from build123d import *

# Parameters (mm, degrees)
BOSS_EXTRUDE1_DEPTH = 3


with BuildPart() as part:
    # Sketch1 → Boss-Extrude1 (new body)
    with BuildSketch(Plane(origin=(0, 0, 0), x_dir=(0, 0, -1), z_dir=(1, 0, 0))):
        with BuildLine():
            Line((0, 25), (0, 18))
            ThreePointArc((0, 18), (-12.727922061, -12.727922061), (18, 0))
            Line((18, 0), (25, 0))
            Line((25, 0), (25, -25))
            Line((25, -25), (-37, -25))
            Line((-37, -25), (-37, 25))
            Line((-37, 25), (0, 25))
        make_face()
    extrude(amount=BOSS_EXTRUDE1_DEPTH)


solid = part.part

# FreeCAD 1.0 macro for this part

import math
import FreeCAD as App
import Part
import Sketcher

V = App.Vector

doc = App.newDocument("Part")
body = doc.addObject("PartDesign::Body", "Body")

sketch1 = body.newObject("Sketcher::SketchObject", "Sketch")
sketch1.AttachmentSupport = (doc.getObject("YZ_Plane"), [""])
sketch1.MapMode = "FlatFace"
sketch1.addGeometry([
    Part.LineSegment(V(18, 0, 0), V(25, 0, 0)),
    Part.LineSegment(V(25, 0, 0), V(25, 37, 0)),
    Part.LineSegment(V(25, 37, 0), V(-25, 37, 0)),
    Part.LineSegment(V(-25, 37, 0), V(-25, -25, 0)),
    Part.LineSegment(V(-25, -25, 0), V(0, -25, 0)),
    Part.LineSegment(V(0, -25, 0), V(0, -18, 0)),
    Part.ArcOfCircle(Part.Circle(V(0, 0, 0), V(0, 0, 1), 18), math.radians(0), math.radians(270)),
], False)
sketch1.addConstraint([
    Sketcher.Constraint("Coincident", 0, 2, 1, 1),
    Sketcher.Constraint("Coincident", 1, 2, 2, 1),
    Sketcher.Constraint("Coincident", 2, 2, 3, 1),
    Sketcher.Constraint("Coincident", 3, 2, 4, 1),
    Sketcher.Constraint("Coincident", 4, 2, 5, 1),
    Sketcher.Constraint("Coincident", 5, 2, 6, 2),
    Sketcher.Constraint("Coincident", 6, 1, 0, 1),
    Sketcher.Constraint("Horizontal", 0),
    Sketcher.Constraint("Vertical", 1),
    Sketcher.Constraint("Horizontal", 2),
    Sketcher.Constraint("Vertical", 3),
    Sketcher.Constraint("Horizontal", 4),
    Sketcher.Constraint("Vertical", 5),
    Sketcher.Constraint("Coincident", 6, 3, -1, 1),
    Sketcher.Constraint("PointOnObject", 0, 2, -1),
    Sketcher.Constraint("PointOnObject", 4, 2, -2),
    Sketcher.Constraint("Equal", 0, 5),
    Sketcher.Constraint("Radius", 6, 18.0),
    Sketcher.Constraint("DistanceX", 0, 1, 0, 2, 7.0),
    Sketcher.Constraint("DistanceX", 2, 2, 2, 1, 50.0),
    Sketcher.Constraint("DistanceY", 1, 1, 1, 2, 37.0),
])
pad1 = body.newObject("PartDesign::Pad", "Pad")
pad1.Profile = sketch1
pad1.Length = 3

doc.recompute()
